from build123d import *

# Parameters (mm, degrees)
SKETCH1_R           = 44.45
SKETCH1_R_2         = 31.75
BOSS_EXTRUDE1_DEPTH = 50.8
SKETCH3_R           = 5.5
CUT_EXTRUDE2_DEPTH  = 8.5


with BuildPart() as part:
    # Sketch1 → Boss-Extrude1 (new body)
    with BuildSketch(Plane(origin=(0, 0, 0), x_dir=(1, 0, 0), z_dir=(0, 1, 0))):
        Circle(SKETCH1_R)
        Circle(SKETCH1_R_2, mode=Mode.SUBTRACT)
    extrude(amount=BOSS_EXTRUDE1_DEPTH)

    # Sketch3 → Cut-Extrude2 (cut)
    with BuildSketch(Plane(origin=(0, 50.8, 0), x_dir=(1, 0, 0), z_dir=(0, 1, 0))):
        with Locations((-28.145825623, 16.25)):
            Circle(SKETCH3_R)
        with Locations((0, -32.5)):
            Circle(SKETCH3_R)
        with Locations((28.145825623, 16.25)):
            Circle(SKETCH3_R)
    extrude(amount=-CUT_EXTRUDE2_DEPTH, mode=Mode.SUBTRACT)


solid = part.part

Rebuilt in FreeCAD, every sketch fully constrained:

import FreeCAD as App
import Part
import Sketcher
from FreeCAD import Vector
Q = App.Units.Quantity

doc = App.newDocument("Part")
params = doc.addObject("Spreadsheet::Sheet", "Params")
for row, (alias, value) in enumerate([
    ("sketch1_diameter", "3.5 in"),
    ("sketch1_diameter2", "2.5 in"),
    ("pad1_length", "2 in"),
    ("pocket1_length", "8.5 mm"),
], start=1):
    params.set(f"A{row}", alias)
    params.set(f"B{row}", "=" + value)
    params.setAlias(f"B{row}", alias)

body = doc.addObject("PartDesign::Body", "Body")

# Sketch on XZ plane
sketch1 = body.newObject("Sketcher::SketchObject", "Sketch")
sketch1.AttachmentSupport = (doc.getObject("XZ_Plane"), [""])
sketch1.MapMode = "FlatFace"
sketch1.addGeometry([
    Part.Circle(Vector(0, 0, 0), Vector(0, 0, 1), 44),
    Part.Circle(Vector(0, 0, 0), Vector(0, 0, 1), 32),
], False)
sketch1.addConstraint([
    Sketcher.Constraint("Coincident", 0, 3, -1, 1),
    Sketcher.Constraint("Coincident", 1, 3, -1, 1),
    Sketcher.Constraint("Diameter", 0, Q("3.5 in")),
    Sketcher.Constraint("Diameter", 1, Q("2.5 in")),
])
sketch1.setExpression("Constraints[2]", "Params.sketch1_diameter")
sketch1.setExpression("Constraints[3]", "Params.sketch1_diameter2")
pad1 = body.newObject("PartDesign::Pad", "Pad")
pad1.Profile = sketch1
pad1.setExpression("Length", "Params.pad1_length")
pad1.Reversed = True

# Sketch on XZ plane
sketch2 = body.newObject("Sketcher::SketchObject", "Sketch001")
sketch2.AttachmentSupport = (doc.getObject("XZ_Plane"), [""])
sketch2.MapMode = "FlatFace"
sketch2.AttachmentOffset = App.Placement(Vector(0, 0, -2 * 25.4), App.Rotation())
sketch2.addGeometry([
    Part.Circle(Vector(-28, -16, 0), Vector(0, 0, 1), 6),
    Part.Circle(Vector(0, 32, 0), Vector(0, 0, 1), 6),
    Part.Circle(Vector(28, -16, 0), Vector(0, 0, 1), 6),
], False)
sketch2.addConstraint([
    Sketcher.Constraint("Equal", 0, 1),
    Sketcher.Constraint("Equal", 1, 2),
    Sketcher.Constraint("Symmetric", 0, 3, 2, 3, -2),
    Sketcher.Constraint("PointOnObject", 1, 3, -2),
    Sketcher.Constraint("Diameter", 0, Q("11 mm")),
    Sketcher.Constraint("DistanceY", 0, 3, -1, 1, Q("16.25 mm")),
    Sketcher.Constraint("DistanceY", -1, 1, 1, 3, Q("32.5 mm")),
    Sketcher.Constraint("DistanceX", 0, 3, 2, 3, Q("56.291651 mm")),
])
pocket1 = body.newObject("PartDesign::Pocket", "Pocket")
pocket1.Profile = sketch2
pocket1.setExpression("Length", "Params.pocket1_length")
pocket1.Reversed = True

doc.recompute()
